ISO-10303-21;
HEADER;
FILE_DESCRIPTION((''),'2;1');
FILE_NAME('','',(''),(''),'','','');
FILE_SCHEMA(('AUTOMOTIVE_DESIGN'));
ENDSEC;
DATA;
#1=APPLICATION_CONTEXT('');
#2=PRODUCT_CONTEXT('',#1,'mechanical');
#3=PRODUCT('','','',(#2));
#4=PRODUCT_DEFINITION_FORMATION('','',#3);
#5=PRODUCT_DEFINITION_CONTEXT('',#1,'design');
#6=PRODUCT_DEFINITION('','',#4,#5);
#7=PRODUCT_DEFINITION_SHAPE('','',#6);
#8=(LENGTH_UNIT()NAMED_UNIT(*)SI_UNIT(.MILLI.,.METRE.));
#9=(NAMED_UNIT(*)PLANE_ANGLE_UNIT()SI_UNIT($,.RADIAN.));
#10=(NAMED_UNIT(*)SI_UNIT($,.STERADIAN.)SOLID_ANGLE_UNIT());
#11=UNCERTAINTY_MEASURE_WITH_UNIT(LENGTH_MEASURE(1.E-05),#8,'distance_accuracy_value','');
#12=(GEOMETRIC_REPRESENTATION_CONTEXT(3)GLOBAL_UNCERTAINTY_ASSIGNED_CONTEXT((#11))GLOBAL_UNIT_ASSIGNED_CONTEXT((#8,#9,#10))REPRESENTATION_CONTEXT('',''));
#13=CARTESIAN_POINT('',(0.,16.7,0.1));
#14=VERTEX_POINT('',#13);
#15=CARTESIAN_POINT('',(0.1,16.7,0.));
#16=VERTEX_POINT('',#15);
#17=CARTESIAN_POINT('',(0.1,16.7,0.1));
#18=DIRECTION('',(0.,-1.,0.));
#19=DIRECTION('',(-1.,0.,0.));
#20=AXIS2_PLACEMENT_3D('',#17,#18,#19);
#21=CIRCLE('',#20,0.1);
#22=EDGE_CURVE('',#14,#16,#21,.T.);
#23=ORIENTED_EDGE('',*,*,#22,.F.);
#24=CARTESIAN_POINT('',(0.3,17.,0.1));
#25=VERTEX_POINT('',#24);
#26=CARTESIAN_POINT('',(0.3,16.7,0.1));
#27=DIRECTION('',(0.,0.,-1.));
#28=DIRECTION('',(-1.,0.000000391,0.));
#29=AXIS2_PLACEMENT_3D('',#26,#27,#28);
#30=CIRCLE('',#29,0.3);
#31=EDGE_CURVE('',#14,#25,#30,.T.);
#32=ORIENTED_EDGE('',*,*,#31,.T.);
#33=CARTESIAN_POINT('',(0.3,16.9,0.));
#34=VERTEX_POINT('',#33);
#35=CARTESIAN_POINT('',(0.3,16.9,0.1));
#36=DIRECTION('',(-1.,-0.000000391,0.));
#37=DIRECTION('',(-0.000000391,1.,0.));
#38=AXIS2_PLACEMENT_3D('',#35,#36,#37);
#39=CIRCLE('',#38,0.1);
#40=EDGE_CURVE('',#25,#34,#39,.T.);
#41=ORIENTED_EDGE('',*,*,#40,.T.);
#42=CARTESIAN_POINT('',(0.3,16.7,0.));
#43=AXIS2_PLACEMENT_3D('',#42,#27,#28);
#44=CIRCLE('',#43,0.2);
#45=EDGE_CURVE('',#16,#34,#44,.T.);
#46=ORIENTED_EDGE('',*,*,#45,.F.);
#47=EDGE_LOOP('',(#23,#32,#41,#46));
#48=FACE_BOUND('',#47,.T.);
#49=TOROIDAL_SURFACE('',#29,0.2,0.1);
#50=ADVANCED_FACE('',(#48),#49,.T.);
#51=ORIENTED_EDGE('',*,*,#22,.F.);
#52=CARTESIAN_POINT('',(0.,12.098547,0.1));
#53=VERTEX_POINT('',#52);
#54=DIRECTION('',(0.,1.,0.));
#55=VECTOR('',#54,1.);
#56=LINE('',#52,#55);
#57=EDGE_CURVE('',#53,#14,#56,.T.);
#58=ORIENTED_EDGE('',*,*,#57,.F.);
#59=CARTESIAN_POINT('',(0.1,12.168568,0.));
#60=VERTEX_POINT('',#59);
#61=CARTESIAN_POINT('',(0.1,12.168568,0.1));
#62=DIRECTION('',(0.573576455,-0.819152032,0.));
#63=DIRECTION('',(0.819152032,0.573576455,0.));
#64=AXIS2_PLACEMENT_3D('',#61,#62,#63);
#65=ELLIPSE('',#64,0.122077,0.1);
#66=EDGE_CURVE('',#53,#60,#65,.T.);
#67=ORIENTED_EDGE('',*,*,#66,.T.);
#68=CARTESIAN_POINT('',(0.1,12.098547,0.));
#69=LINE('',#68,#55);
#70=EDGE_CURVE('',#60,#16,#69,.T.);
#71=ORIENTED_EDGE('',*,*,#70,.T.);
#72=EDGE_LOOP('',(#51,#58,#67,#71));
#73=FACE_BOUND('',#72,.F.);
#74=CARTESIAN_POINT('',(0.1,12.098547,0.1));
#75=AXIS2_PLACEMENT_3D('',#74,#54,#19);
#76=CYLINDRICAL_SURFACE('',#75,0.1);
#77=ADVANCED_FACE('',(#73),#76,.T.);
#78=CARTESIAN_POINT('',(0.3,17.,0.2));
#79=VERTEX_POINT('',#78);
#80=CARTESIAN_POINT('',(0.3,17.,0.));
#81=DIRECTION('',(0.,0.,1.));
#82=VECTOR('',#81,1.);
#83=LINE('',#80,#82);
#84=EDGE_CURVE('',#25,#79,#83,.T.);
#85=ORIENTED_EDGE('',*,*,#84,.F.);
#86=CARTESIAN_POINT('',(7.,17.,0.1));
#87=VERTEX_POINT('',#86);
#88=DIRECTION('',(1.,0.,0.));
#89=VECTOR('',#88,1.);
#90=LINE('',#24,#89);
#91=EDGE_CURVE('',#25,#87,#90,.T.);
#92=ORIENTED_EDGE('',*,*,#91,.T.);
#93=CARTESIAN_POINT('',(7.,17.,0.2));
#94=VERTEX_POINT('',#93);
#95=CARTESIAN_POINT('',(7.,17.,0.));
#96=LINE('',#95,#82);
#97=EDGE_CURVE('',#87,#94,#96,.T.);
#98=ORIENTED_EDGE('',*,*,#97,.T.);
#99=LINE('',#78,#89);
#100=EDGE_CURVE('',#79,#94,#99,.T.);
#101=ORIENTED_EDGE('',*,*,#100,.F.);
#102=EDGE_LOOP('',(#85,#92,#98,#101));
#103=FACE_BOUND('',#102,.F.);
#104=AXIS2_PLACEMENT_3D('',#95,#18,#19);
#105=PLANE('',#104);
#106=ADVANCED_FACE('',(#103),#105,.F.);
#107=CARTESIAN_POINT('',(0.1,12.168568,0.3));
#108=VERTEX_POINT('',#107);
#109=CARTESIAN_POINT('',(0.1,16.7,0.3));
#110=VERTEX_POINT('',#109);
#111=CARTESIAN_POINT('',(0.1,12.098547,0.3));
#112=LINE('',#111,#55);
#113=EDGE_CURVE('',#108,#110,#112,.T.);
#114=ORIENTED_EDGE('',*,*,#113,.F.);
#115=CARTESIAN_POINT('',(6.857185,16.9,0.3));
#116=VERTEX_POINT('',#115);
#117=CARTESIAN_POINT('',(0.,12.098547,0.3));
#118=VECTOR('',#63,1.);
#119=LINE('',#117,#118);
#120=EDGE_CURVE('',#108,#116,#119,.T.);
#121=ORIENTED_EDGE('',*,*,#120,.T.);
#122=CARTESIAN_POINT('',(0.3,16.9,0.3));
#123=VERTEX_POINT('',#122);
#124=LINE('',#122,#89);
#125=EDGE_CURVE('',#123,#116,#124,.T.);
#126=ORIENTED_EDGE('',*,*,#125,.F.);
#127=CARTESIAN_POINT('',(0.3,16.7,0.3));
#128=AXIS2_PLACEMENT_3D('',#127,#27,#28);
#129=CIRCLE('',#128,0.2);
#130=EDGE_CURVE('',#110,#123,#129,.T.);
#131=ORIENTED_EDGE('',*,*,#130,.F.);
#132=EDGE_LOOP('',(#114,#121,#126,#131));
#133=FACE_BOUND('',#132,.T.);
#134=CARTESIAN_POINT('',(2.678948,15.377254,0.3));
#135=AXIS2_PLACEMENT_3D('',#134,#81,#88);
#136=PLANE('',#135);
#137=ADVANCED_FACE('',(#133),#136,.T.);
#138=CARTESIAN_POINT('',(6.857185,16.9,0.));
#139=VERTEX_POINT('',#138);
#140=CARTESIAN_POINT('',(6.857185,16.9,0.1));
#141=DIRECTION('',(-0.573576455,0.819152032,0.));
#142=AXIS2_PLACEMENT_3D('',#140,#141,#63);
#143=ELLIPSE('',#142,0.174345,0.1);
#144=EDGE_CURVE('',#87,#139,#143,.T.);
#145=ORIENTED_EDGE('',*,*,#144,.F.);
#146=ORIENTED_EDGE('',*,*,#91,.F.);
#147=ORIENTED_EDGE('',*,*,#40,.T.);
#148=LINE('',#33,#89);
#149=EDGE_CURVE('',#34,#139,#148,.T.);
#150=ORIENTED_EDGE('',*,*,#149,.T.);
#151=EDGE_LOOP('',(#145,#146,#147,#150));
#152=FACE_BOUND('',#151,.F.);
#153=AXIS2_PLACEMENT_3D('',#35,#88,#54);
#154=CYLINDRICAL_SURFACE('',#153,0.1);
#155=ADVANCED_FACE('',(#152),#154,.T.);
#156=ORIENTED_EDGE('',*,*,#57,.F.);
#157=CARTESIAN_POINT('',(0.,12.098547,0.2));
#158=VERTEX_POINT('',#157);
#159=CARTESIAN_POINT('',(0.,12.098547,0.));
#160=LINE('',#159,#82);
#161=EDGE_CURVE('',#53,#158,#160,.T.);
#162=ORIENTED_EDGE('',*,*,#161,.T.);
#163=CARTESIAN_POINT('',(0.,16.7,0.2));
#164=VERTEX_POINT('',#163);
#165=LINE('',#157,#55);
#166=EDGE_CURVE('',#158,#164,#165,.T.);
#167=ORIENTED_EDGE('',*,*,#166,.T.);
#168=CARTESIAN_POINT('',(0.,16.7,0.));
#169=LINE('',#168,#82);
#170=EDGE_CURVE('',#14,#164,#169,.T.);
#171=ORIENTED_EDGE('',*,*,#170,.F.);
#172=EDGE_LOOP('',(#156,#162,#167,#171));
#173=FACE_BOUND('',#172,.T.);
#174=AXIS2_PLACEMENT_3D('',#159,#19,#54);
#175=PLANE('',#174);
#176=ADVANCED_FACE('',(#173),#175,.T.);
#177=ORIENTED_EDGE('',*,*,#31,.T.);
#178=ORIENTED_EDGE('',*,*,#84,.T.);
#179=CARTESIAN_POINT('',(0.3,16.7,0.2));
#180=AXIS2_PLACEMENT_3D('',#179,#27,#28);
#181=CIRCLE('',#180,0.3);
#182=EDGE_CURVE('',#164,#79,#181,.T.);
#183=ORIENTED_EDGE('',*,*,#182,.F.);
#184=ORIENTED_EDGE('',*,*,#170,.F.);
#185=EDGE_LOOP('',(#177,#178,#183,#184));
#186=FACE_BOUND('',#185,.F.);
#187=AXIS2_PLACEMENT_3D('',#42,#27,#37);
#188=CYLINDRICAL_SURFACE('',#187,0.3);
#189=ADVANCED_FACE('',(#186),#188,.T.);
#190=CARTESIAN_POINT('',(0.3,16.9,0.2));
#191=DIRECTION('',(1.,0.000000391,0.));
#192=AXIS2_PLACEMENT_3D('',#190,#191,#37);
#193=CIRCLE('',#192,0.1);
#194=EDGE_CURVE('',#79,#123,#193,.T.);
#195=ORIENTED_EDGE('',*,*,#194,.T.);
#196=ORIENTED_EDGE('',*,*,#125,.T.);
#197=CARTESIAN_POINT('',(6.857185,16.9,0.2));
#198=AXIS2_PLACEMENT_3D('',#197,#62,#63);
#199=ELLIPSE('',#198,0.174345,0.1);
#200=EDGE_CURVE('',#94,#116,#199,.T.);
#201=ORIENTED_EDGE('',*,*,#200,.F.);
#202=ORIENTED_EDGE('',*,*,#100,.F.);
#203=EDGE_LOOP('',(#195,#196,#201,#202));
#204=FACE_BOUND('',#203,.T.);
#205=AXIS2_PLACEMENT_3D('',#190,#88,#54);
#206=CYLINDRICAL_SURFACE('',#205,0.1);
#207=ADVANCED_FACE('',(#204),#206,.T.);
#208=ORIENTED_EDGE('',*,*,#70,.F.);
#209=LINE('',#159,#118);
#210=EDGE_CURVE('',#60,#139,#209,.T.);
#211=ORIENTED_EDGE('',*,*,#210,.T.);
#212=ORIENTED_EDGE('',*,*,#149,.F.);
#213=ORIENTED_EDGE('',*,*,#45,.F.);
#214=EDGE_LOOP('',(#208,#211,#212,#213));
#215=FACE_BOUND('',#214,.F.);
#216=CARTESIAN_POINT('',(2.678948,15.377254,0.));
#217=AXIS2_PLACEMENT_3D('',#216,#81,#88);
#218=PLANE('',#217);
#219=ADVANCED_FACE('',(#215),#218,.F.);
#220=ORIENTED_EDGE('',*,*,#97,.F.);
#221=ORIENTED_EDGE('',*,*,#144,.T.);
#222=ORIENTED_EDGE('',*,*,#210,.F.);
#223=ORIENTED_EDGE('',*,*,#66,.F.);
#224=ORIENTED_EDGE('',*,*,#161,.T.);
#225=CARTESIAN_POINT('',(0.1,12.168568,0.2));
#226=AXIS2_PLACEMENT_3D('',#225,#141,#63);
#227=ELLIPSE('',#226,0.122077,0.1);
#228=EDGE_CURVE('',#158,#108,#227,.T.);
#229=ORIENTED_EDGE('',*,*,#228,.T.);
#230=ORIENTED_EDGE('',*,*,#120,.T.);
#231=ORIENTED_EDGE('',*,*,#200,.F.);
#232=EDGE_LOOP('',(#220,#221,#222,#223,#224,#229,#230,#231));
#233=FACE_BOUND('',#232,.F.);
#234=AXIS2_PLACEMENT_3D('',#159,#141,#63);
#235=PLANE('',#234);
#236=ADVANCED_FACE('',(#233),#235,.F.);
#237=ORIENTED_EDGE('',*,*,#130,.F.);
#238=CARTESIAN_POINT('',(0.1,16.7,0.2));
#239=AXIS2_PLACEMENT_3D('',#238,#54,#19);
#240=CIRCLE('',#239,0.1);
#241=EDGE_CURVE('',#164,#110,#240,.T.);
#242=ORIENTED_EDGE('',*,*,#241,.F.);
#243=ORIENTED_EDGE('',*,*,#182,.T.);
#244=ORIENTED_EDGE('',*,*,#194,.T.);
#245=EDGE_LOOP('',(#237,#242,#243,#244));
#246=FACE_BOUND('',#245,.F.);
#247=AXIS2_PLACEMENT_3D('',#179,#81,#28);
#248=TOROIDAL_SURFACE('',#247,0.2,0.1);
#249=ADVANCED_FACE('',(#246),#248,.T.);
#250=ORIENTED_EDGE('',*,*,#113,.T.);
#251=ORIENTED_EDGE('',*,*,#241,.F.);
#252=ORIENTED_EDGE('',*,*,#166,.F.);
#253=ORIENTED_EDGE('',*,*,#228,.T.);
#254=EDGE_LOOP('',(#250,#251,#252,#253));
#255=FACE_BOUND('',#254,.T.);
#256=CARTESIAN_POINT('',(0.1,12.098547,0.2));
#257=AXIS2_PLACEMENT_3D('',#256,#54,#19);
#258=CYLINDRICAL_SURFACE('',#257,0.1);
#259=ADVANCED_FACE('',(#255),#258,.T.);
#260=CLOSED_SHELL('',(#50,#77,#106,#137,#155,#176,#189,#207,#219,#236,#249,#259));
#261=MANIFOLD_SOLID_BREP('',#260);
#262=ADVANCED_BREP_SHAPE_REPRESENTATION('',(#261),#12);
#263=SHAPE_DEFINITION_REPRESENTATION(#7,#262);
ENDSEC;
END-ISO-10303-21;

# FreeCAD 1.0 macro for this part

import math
import FreeCAD as App
import Part
import Sketcher

V = App.Vector
Q = App.Units.Quantity


def edges_at(feature, points):
    """Names of the edges that pass closest to the given points."""
    edges = feature.Shape.Edges
    near = lambda p: min(range(len(edges)), key=lambda i: edges[i].distToShape(Part.Vertex(*p))[0])
    return sorted({f"Edge{near(p) + 1}" for p in points})

doc = App.newDocument("Part")
body = doc.addObject("PartDesign::Body", "Body")

# Sketch on XY plane
sketch1 = body.newObject("Sketcher::SketchObject", "Sketch")
sketch1.AttachmentSupport = (doc.getObject("XY_Plane"), [""])
sketch1.MapMode = "FlatFace"
sketch1.addGeometry(Part.LineSegment(V(0, 12.098547, 0), V(7, 17, 0)), False)
sketch1.addGeometry(Part.LineSegment(V(7, 17, 0), V(0.3, 17, 0)), False)
sketch1.addGeometry(Part.ArcOfCircle(Part.Circle(V(0.3, 16.7, 0), V(0, 0, 1), 0.3), math.radians(90.000022), math.radians(179.999978)), False)
sketch1.addGeometry(Part.LineSegment(V(0, 16.7, 0), V(0, 12.098547, 0)), False)
sketch1.addConstraint(Sketcher.Constraint("Coincident", 0, 2, 1, 1))
sketch1.addConstraint(Sketcher.Constraint("Tangent", 1, 2, 2, 1))
sketch1.addConstraint(Sketcher.Constraint("Tangent", 2, 2, 3, 1))
sketch1.addConstraint(Sketcher.Constraint("Coincident", 3, 2, 0, 1))
sketch1.addConstraint(Sketcher.Constraint("Horizontal", 1))
sketch1.addConstraint(Sketcher.Constraint("Vertical", 3))
sketch1.addConstraint(Sketcher.Constraint("PointOnObject", 2, 2, -2))
sketch1.addConstraint(Sketcher.Constraint("Radius", 2, 0.3))
sketch1.addConstraint(Sketcher.Constraint("Angle", 0, Q("35.000001 deg")))
sketch1.addConstraint(Sketcher.Constraint("DistanceX", 1, 2, 1, 1, 6.7))
sketch1.addConstraint(Sketcher.Constraint("DistanceY", -1, 1, 0, 2, 17.0))
pad1 = body.newObject("PartDesign::Pad", "Pad")
pad1.Profile = sketch1
pad1.Length = 0.3
doc.recompute()

fillet = body.newObject("PartDesign::Fillet", "Fillet")
fillet.Base = (pad1, edges_at(pad1, [(0, 14.399, 0.3), (0.088, 16.912, 0.3), (3.65, 17, 0.3)]))
fillet.Radius = 0.1
doc.recompute()

fillet2 = body.newObject("PartDesign::Fillet", "Fillet001")
fillet2.Base = (fillet, edges_at(fillet, [(0, 14.399, 0), (0.088, 16.912, 0), (3.65, 17, 0)]))
fillet2.Radius = 0.1

doc.recompute()
